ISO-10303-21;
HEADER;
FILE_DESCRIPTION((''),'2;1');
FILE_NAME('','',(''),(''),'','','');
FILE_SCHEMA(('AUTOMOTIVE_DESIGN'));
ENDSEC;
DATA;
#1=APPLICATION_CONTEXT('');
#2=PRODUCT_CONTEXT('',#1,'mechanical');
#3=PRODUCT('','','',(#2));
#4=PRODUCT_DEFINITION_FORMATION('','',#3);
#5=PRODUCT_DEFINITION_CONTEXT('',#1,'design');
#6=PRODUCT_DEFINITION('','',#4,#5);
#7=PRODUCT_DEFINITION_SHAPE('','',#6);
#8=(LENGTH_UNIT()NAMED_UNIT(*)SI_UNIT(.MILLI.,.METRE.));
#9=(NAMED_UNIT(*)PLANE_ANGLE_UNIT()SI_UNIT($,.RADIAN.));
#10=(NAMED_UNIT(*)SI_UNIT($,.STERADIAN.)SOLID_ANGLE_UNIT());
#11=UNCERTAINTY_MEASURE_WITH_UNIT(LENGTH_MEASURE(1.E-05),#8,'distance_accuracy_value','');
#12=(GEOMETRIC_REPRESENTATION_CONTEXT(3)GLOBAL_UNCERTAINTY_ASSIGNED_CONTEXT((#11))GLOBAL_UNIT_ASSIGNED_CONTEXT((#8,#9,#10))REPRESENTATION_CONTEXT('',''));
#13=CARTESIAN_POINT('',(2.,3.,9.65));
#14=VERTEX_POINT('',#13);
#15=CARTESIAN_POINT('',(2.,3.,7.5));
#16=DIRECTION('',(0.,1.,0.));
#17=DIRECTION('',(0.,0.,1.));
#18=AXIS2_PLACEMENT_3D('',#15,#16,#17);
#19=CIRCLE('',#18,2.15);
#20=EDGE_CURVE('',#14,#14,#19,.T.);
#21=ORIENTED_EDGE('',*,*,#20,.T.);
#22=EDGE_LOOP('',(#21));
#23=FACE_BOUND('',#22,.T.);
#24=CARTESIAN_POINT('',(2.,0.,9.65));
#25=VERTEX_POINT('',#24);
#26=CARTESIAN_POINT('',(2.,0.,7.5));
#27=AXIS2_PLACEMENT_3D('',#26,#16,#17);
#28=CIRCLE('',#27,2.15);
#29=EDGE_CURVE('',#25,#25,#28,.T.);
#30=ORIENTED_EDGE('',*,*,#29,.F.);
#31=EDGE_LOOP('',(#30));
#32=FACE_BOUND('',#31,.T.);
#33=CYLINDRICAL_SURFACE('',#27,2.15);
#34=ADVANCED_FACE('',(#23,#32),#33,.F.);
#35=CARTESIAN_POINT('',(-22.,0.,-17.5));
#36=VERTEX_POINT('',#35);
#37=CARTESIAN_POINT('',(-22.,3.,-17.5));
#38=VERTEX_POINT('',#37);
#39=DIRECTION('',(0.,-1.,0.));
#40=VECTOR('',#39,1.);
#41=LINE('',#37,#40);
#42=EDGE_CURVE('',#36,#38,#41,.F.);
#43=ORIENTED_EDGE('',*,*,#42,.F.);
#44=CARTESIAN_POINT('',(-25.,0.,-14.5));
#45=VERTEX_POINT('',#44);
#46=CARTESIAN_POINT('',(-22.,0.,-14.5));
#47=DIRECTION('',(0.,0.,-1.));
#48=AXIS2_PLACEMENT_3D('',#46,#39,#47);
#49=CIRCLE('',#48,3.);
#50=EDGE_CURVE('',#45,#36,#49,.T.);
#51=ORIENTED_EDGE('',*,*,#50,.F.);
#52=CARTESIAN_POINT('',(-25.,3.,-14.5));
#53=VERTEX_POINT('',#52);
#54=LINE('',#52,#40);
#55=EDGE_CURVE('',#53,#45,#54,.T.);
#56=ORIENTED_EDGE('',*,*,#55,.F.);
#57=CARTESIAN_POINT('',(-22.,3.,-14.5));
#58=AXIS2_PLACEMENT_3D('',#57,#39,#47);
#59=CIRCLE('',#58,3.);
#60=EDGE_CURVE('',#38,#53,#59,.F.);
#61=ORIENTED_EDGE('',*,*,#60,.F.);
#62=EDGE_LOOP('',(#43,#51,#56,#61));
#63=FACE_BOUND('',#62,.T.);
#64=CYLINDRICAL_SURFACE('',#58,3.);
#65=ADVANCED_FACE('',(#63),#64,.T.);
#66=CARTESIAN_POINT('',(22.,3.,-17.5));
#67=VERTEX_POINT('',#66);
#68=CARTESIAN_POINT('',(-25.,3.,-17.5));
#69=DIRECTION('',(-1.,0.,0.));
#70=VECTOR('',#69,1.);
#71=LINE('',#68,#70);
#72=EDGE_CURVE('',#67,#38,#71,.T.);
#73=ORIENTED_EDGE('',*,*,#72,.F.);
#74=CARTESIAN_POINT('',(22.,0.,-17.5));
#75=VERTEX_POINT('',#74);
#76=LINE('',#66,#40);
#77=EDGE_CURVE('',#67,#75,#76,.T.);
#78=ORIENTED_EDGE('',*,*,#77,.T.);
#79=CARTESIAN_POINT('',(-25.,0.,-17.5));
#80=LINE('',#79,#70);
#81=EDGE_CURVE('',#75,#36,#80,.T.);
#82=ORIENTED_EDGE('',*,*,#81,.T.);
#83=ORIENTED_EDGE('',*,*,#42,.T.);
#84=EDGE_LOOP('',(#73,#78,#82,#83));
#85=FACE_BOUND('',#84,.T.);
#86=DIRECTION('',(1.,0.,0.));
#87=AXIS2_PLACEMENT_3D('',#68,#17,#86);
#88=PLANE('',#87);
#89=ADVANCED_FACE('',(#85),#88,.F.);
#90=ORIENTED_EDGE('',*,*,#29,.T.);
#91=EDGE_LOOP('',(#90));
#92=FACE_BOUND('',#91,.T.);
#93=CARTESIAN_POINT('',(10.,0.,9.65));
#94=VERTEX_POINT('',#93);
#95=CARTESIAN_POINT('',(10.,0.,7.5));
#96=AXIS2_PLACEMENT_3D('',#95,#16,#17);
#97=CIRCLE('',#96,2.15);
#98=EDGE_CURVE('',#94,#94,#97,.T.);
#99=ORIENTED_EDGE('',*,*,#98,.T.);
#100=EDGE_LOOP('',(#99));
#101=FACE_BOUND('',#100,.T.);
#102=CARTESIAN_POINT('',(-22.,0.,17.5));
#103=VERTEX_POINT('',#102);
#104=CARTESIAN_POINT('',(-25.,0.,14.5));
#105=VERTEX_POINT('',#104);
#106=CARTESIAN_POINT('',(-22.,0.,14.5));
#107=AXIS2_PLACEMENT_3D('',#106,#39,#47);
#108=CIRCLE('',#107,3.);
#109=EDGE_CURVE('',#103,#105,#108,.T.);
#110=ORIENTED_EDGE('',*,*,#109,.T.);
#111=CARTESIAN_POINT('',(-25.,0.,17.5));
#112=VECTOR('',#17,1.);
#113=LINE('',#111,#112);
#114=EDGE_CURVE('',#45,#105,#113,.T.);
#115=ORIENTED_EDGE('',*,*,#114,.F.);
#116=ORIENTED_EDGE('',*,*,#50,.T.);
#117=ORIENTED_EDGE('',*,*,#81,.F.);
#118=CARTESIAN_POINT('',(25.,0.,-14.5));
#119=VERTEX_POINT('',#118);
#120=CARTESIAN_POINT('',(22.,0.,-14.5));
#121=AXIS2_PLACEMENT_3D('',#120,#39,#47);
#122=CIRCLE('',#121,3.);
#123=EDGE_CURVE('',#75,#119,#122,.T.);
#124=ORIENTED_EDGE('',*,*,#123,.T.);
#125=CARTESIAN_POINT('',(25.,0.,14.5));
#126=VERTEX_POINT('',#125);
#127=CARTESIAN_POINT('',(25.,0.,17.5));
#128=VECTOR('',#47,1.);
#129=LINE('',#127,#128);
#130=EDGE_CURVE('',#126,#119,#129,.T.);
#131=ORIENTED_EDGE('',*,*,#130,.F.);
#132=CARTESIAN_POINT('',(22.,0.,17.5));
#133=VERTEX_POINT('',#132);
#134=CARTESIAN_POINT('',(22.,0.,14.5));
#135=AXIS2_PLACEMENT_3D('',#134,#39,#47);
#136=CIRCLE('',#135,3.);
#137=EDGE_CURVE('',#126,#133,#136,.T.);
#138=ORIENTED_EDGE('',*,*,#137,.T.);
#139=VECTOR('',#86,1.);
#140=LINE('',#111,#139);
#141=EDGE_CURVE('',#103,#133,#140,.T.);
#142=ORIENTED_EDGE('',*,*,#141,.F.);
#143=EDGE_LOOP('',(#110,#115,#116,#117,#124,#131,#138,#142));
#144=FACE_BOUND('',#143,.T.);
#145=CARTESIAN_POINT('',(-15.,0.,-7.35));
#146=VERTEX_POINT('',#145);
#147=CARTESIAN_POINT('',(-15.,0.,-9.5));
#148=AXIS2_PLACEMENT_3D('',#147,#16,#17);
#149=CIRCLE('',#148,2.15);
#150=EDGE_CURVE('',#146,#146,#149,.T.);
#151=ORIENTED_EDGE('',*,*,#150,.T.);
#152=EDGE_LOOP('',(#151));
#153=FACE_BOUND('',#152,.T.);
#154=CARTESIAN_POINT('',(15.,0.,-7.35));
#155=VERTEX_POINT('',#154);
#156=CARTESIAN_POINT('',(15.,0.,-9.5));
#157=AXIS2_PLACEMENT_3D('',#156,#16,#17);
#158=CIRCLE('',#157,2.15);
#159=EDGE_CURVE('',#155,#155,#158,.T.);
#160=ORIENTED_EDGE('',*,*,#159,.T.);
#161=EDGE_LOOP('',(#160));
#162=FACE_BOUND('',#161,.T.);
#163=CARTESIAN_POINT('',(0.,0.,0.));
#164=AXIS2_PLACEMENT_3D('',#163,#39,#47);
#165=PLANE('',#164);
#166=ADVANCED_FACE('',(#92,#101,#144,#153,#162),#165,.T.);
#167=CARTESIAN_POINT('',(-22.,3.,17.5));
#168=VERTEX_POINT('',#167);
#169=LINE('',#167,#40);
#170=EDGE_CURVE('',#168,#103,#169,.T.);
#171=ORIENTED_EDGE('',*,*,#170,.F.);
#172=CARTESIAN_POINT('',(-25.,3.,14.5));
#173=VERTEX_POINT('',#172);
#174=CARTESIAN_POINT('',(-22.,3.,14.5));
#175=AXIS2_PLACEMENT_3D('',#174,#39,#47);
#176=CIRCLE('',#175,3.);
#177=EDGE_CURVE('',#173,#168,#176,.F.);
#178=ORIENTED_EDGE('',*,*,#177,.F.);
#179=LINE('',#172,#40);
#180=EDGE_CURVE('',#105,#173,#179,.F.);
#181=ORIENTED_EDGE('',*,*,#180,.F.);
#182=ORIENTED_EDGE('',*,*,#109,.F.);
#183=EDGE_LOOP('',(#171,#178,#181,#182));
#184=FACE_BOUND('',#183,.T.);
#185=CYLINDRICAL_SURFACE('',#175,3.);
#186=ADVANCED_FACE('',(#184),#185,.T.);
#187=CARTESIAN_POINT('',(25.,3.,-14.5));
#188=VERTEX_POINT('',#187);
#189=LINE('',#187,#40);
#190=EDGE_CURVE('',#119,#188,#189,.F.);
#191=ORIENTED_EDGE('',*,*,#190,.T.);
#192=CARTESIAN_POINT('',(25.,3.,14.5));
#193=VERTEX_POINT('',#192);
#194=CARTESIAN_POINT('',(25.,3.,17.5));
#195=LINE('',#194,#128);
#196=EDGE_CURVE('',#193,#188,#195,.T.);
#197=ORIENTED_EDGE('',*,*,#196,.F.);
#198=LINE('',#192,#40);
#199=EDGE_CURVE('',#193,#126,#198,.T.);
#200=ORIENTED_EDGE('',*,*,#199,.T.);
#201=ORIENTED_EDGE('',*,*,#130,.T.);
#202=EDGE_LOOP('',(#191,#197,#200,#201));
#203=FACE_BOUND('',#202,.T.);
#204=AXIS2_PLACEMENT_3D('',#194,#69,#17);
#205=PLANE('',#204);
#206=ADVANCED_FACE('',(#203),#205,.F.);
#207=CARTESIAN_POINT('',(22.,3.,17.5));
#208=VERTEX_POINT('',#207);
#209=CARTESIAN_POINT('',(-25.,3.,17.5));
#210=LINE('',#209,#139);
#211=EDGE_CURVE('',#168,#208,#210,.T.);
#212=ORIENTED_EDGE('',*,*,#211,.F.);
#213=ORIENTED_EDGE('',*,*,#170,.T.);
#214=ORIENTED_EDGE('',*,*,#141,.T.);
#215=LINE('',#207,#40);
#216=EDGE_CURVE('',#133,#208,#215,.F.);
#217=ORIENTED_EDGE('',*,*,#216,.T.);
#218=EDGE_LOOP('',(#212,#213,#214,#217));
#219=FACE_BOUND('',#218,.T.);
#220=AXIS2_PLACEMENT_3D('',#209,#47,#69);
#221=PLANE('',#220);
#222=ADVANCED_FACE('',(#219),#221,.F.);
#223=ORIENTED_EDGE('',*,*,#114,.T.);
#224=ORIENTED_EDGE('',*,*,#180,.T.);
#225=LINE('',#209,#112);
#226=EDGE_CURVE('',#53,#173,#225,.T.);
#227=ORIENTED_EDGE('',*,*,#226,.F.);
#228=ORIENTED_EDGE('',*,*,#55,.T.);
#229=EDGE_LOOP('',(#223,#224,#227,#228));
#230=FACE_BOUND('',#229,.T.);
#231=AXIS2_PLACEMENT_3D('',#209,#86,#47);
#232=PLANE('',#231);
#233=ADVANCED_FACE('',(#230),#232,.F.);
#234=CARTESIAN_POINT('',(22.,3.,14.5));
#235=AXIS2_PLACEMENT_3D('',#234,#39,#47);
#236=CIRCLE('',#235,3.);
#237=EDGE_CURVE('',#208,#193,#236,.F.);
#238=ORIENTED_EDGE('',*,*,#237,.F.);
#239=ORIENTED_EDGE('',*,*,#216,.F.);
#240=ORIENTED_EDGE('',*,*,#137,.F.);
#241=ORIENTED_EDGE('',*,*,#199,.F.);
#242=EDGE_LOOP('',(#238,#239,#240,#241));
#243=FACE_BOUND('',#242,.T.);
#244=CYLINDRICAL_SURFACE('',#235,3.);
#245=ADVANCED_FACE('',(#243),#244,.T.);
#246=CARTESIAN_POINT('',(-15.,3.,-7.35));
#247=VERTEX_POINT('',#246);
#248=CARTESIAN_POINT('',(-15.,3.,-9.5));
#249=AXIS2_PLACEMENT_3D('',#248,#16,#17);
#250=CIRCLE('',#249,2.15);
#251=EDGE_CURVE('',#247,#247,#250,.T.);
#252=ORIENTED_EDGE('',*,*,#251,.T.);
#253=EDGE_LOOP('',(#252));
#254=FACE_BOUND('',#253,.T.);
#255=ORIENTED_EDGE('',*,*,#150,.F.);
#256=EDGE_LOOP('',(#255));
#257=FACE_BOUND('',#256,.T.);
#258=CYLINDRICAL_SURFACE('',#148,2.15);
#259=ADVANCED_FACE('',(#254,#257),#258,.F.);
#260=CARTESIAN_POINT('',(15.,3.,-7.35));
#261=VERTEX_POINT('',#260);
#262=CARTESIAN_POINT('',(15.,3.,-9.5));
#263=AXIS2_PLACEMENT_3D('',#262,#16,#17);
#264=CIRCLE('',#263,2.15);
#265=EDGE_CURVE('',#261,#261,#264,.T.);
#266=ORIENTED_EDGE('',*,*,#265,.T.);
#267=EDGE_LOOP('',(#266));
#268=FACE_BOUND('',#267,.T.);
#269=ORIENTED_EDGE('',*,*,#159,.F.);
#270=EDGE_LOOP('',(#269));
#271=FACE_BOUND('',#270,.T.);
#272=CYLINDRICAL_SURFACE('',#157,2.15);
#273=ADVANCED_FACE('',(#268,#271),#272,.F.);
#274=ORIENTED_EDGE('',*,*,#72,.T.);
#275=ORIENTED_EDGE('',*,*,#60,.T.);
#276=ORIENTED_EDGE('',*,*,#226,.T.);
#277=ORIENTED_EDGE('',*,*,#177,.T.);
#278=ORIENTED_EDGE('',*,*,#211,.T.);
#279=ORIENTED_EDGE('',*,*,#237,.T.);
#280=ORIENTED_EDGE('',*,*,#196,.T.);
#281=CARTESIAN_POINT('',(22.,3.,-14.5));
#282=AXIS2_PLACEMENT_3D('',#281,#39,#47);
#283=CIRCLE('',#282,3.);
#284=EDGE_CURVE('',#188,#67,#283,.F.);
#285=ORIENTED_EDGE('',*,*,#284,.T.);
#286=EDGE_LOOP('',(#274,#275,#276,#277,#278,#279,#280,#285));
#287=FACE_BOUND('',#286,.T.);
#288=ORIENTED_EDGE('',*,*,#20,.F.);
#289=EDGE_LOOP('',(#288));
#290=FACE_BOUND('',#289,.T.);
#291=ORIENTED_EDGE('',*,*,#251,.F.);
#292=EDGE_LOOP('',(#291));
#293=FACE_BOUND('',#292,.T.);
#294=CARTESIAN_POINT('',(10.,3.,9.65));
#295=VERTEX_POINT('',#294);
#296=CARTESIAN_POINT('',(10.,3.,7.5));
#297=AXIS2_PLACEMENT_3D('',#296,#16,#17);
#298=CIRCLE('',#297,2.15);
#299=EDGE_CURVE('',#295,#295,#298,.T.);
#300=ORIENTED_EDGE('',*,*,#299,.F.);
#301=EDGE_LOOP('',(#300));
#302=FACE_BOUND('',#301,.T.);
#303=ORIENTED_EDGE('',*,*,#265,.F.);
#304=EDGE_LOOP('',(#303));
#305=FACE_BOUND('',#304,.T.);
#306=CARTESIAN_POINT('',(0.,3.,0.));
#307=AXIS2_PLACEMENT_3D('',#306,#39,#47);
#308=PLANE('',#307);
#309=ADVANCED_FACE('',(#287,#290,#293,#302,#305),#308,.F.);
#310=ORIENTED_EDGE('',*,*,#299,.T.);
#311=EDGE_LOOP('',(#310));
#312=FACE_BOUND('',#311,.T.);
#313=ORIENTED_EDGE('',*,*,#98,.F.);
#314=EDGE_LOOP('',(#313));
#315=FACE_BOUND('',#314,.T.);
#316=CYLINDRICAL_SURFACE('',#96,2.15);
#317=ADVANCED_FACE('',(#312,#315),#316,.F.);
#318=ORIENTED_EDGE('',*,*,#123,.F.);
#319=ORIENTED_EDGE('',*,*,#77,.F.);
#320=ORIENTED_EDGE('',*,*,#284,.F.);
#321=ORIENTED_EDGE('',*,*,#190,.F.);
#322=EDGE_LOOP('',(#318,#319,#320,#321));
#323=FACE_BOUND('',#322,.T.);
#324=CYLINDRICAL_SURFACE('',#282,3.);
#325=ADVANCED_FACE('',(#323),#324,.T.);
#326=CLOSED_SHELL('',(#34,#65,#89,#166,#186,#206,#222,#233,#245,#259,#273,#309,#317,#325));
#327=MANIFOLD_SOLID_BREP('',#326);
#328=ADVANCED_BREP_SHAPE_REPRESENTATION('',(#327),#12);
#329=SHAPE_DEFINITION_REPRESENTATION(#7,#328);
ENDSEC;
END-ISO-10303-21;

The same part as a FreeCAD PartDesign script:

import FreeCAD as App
import Part
import Sketcher
from FreeCAD import Vector
Q = App.Units.Quantity


def edges_at(feature, points):
    """Names of the edges that pass closest to the given points."""
    edges = feature.Shape.Edges
    near = lambda p: min(range(len(edges)), key=lambda i: edges[i].distToShape(Part.Vertex(*p))[0])
    return sorted({f"Edge{near(p) + 1}" for p in points})


def add_polygon(sketch, points):
    """Adds a closed chain of lines whose ends are joined by coincident constraints."""
    first, n = sketch.GeometryCount, len(points)
    for a, b in zip(points, points[1:] + points[:1]):
        sketch.addGeometry(Part.LineSegment(App.Vector(*a, 0), App.Vector(*b, 0)), False)
    for i in range(n):
        sketch.addConstraint(Sketcher.Constraint("Coincident", first + i, 2, first + (i + 1) % n, 1))

doc = App.newDocument("Part")
params = doc.addObject("Spreadsheet::Sheet", "Params")
for row, (alias, value) in enumerate([
    ("sketch1_width", "50 mm"),
    ("sketch1_height", "35 mm"),
    ("pad1_length", "3 mm"),
    ("sketch2_diameter", "4.3 mm"),
    ("pocket1_length", "3 mm"),
    ("sketch3_diameter", "4.3 mm"),
    ("pocket2_length", "3 mm"),
    ("fillet_radius", "3 mm"),
], start=1):
    params.set(f"A{row}", alias)
    params.set(f"B{row}", "=" + value)
    params.setAlias(f"B{row}", alias)

body = doc.addObject("PartDesign::Body", "Body")

# Sketch on XZ plane
sketch1 = doc.addObject("Sketcher::SketchObject", "Sketch")
body.addObject(sketch1)
sketch1.AttachmentSupport = (doc.XZ_Plane, [""])
sketch1.MapMode = "FlatFace"
add_polygon(sketch1, [(-25, -18), (-25, 18), (25, 18), (25, -18)])  # lines 0-3
sketch1.addConstraint([
    Sketcher.Constraint("Vertical", 0),
    Sketcher.Constraint("Horizontal", 1),
    Sketcher.Constraint("Vertical", 2),
    Sketcher.Constraint("Horizontal", 3),
    Sketcher.Constraint("Symmetric", 0, 2, 2, 2, -1, 1),
    Sketcher.Constraint("DistanceX", 1, 1, 1, 2, Q("50 mm")),
    Sketcher.Constraint("DistanceY", 0, 1, 0, 2, Q("35 mm")),
])
sketch1.setExpression("Constraints[9]", "Params.sketch1_width")
sketch1.setExpression("Constraints[10]", "Params.sketch1_height")
pad1 = doc.addObject("PartDesign::Pad", "Pad")
body.addObject(pad1)
pad1.Profile = sketch1
pad1.setExpression("Length", "Params.pad1_length")
pad1.Reversed = True

# Sketch on XZ plane
sketch2 = doc.addObject("Sketcher::SketchObject", "Sketch001")
body.addObject(sketch2)
sketch2.AttachmentSupport = (doc.XZ_Plane, [""])
sketch2.MapMode = "FlatFace"
sketch2.AttachmentOffset = App.Placement(Vector(0, 0, -3), App.Rotation())
sketch2.addGeometry([
    Part.Circle(Vector(-15, -9.5, 0), Vector(0, 0, 1), 2.1),
    Part.Circle(Vector(15, -9.5, 0), Vector(0, 0, 1), 2.1),
], False)
sketch2.addConstraint([
    Sketcher.Constraint("Equal", 0, 1),
    Sketcher.Constraint("Symmetric", 0, 3, 1, 3, -2),
    Sketcher.Constraint("Diameter", 0, Q("4.3 mm")),
    Sketcher.Constraint("DistanceX", 0, 3, -1, 1, Q("15 mm")),
    Sketcher.Constraint("DistanceY", 0, 3, -1, 1, Q("9.5 mm")),
])
sketch2.setExpression("Constraints[2]", "Params.sketch2_diameter")
pocket1 = doc.addObject("PartDesign::Pocket", "Pocket")
body.addObject(pocket1)
pocket1.Profile = sketch2
pocket1.setExpression("Length", "Params.pocket1_length")
pocket1.Reversed = True

# Sketch on XZ plane
sketch3 = doc.addObject("Sketcher::SketchObject", "Sketch002")
body.addObject(sketch3)
sketch3.AttachmentSupport = (doc.XZ_Plane, [""])
sketch3.MapMode = "FlatFace"
sketch3.AttachmentOffset = App.Placement(Vector(0, 0, -3), App.Rotation())
sketch3.addGeometry([
    Part.Circle(Vector(2, 7.5, 0), Vector(0, 0, 1), 2.1),
    Part.Circle(Vector(10, 7.5, 0), Vector(0, 0, 1), 2.1),
], False)
sketch3.addConstraint([
    Sketcher.Constraint("Equal", 0, 1),
    Sketcher.Constraint("Horizontal", 0, 3, 1, 3),
    Sketcher.Constraint("Diameter", 0, Q("4.3 mm")),
    Sketcher.Constraint("DistanceX", -1, 1, 0, 3, Q("2 mm")),
    Sketcher.Constraint("DistanceX", -1, 1, 1, 3, Q("10 mm")),
    Sketcher.Constraint("DistanceY", -1, 1, 0, 3, Q("7.5 mm")),
])
sketch3.setExpression("Constraints[2]", "Params.sketch3_diameter")
pocket2 = doc.addObject("PartDesign::Pocket", "Pocket001")
body.addObject(pocket2)
pocket2.Profile = sketch3
pocket2.setExpression("Length", "Params.pocket2_length")
pocket2.Reversed = True
doc.recompute()

fillet = doc.addObject("PartDesign::Fillet", "Fillet")
body.addObject(fillet)
fillet.Base = (pocket2, edges_at(pocket2, [
    (25, 1.5, 17.5),
    (-25, 1.5, 17.5),
    (-25, 1.5, -17.5),
    (25, 1.5, -17.5),
]))
fillet.setExpression("Radius", "Params.fillet_radius")

doc.recompute()
